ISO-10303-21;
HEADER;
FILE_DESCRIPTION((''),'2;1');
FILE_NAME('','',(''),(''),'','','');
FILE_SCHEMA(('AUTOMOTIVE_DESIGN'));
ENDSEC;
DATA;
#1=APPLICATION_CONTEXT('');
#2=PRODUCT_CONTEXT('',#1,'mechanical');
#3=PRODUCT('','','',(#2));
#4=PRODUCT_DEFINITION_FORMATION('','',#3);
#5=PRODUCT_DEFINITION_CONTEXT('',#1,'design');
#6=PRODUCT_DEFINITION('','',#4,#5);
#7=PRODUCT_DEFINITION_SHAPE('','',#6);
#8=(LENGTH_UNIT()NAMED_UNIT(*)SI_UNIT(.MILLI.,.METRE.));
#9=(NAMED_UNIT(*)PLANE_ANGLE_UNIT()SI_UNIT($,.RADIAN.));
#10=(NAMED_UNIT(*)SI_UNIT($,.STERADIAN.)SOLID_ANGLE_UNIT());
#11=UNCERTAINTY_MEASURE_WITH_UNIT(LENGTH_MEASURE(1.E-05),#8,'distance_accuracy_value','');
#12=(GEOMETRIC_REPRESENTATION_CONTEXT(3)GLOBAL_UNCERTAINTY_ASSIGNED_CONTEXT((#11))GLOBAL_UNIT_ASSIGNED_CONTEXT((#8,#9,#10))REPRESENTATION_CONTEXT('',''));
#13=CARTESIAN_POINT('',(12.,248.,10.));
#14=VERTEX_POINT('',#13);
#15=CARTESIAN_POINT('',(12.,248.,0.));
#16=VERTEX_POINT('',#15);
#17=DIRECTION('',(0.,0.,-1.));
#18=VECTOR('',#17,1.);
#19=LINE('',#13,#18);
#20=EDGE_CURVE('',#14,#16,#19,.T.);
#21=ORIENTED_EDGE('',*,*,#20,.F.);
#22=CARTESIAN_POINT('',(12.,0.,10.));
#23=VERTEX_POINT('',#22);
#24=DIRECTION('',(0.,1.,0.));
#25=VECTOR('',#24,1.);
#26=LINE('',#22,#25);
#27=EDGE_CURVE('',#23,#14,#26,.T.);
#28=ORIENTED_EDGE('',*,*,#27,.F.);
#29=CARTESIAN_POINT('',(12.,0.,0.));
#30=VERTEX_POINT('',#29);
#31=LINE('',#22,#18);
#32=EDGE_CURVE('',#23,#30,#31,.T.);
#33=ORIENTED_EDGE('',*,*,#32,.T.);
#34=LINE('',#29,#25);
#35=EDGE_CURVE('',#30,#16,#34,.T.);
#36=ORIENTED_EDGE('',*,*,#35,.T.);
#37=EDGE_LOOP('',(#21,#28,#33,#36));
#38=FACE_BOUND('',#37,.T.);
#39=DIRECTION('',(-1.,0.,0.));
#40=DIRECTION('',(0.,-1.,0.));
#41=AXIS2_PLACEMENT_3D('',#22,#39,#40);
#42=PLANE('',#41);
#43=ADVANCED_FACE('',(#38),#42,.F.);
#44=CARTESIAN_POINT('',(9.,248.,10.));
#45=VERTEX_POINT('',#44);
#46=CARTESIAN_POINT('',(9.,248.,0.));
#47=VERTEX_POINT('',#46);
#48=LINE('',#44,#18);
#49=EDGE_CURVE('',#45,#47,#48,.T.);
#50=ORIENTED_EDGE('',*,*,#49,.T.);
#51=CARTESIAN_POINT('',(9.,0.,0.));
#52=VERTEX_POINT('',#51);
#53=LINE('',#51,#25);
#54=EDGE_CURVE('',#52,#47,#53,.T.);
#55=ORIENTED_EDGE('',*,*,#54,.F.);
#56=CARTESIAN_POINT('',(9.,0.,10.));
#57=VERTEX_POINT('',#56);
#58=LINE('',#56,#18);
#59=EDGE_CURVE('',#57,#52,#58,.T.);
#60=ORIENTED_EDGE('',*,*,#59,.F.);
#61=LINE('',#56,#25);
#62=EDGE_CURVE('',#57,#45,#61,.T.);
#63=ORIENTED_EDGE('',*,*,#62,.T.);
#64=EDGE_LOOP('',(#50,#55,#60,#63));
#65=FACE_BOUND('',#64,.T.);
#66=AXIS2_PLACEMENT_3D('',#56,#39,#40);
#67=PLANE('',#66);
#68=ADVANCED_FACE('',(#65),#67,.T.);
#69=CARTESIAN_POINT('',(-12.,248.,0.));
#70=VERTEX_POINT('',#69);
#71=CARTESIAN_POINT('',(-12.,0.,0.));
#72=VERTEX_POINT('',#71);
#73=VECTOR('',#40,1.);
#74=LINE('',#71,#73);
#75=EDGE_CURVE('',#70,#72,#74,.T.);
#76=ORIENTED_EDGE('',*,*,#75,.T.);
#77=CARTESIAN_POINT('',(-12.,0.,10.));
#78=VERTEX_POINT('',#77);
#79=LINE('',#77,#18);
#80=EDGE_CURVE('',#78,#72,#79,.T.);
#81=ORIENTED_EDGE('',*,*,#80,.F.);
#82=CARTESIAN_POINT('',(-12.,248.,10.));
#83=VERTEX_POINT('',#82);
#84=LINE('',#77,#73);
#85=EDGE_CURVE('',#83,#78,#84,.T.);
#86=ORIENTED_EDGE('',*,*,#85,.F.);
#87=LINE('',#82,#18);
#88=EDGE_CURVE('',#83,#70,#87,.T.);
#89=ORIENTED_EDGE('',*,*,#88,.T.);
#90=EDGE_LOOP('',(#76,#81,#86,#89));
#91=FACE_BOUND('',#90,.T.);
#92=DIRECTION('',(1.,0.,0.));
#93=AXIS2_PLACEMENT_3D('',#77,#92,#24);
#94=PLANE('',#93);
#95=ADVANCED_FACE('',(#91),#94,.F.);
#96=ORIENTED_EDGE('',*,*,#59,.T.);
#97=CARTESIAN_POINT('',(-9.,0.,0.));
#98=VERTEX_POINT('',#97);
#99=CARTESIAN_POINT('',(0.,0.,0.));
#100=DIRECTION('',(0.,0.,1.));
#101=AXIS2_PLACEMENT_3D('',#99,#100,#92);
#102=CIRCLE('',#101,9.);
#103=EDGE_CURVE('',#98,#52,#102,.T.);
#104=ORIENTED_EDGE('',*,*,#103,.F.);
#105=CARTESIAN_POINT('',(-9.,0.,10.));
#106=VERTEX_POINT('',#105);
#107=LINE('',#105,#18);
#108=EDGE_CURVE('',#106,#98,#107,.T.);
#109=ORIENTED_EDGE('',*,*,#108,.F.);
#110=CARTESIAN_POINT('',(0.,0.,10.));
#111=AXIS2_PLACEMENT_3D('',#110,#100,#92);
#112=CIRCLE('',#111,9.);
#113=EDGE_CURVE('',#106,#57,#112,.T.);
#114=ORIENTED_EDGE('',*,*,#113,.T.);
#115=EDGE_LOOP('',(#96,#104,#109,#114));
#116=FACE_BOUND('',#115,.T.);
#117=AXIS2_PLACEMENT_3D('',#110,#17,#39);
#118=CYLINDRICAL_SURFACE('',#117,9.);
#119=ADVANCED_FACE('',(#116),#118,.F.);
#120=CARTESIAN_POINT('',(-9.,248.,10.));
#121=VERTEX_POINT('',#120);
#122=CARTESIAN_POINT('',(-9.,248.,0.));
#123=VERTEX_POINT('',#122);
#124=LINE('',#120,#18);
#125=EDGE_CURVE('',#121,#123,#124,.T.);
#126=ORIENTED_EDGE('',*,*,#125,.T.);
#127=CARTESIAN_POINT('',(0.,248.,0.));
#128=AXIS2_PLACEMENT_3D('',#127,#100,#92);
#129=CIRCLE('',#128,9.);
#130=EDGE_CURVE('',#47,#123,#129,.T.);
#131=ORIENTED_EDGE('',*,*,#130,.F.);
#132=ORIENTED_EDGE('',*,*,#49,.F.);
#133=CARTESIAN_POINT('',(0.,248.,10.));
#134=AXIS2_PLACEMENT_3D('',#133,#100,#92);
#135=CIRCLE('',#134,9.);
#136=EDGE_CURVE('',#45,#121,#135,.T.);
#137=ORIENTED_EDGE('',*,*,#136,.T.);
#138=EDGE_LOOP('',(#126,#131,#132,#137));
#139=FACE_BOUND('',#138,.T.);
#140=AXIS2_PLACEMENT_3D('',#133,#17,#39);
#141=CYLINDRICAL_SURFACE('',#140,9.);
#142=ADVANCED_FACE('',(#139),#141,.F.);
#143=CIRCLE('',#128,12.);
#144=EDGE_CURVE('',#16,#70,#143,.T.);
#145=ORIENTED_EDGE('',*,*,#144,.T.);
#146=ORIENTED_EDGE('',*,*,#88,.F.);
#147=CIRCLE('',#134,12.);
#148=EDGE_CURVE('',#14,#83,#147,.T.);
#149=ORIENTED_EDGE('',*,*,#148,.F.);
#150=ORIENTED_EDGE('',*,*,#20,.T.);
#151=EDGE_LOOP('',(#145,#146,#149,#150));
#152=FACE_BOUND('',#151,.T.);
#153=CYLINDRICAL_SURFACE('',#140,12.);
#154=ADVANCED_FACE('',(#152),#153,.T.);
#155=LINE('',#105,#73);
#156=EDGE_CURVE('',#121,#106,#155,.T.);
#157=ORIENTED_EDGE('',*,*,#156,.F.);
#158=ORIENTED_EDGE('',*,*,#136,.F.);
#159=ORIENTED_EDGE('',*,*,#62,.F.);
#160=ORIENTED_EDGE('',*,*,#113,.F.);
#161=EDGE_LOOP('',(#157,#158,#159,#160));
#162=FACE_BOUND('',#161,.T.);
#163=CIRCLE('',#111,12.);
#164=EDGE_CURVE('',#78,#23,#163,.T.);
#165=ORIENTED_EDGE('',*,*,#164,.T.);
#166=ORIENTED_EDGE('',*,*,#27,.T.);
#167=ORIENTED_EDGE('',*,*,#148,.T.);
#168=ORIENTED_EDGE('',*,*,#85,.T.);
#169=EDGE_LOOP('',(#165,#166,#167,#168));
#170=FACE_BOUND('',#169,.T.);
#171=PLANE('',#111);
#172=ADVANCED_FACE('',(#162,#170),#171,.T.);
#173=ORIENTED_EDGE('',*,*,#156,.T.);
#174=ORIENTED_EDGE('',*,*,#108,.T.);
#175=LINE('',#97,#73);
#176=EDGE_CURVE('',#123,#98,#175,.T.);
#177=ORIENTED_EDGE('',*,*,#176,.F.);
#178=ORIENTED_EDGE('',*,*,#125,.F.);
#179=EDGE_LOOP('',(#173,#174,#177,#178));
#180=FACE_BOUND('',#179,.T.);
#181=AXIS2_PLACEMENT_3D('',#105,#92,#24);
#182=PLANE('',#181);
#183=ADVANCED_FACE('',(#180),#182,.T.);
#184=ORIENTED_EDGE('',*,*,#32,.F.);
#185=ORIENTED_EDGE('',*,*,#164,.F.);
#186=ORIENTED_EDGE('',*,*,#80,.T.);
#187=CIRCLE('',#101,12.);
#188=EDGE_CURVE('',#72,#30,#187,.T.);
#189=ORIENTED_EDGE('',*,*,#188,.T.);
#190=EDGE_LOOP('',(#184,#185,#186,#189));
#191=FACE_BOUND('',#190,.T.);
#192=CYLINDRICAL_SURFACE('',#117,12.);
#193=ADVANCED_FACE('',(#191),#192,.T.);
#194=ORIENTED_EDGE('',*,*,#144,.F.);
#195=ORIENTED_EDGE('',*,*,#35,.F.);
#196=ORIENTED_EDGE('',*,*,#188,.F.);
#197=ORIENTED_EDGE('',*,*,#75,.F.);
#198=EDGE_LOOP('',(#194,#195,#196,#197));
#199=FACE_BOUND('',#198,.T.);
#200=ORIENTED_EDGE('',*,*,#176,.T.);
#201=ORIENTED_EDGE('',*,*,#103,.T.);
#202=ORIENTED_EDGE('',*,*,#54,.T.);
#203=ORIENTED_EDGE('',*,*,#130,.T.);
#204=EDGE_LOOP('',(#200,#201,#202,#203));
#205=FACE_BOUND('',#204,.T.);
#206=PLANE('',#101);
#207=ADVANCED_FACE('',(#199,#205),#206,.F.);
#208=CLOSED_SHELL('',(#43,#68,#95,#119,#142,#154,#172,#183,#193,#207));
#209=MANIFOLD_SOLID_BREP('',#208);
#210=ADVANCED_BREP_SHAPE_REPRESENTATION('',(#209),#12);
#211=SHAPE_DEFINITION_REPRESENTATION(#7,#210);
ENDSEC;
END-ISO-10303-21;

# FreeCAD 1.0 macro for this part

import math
import FreeCAD as App
import Part
import Sketcher
from FreeCAD import Vector

doc = App.newDocument("Part")
params = doc.addObject("Spreadsheet::Sheet", "Params")
for row, (alias, value) in enumerate([
    ("sketch1_radius", "12 mm"),
    ("sketch1_radius2", "9 mm"),
    ("sketch1_height", "248 mm"),
    ("pad1_length", "10 mm"),
], start=1):
    params.set(f"A{row}", alias)
    params.set(f"B{row}", "=" + value)
    params.setAlias(f"B{row}", alias)

body = doc.addObject("PartDesign::Body", "Body")

sketch1 = doc.addObject("Sketcher::SketchObject", "Sketch")
body.addObject(sketch1)
sketch1.AttachmentSupport = (doc.XY_Plane, [""])
sketch1.MapMode = "FlatFace"
sketch1.addGeometry(Part.LineSegment(Vector(12, 0, 0), Vector(12, 248, 0)), False)
sketch1.addGeometry(Part.ArcOfCircle(Part.Circle(Vector(0, 248, 0), Vector(0, 0, 1), 12), math.radians(0), math.radians(180)), False)
sketch1.addGeometry(Part.LineSegment(Vector(-12, 248, 0), Vector(-12, 0, 0)), False)
sketch1.addGeometry(Part.ArcOfCircle(Part.Circle(Vector(0, 0, 0), Vector(0, 0, 1), 12), math.radians(180), math.radians(360)), False)
sketch1.addGeometry(Part.ArcOfCircle(Part.Circle(Vector(0, 248, 0), Vector(0, 0, 1), 9), math.radians(0), math.radians(180)), False)
sketch1.addGeometry(Part.LineSegment(Vector(9, 248, 0), Vector(9, 0, 0)), False)
sketch1.addGeometry(Part.ArcOfCircle(Part.Circle(Vector(0, 0, 0), Vector(0, 0, 1), 9), math.radians(180), math.radians(360)), False)
sketch1.addGeometry(Part.LineSegment(Vector(-9, 0, 0), Vector(-9, 248, 0)), False)
sketch1.addConstraint(Sketcher.Constraint("Tangent", 0, 2, 1, 1))
sketch1.addConstraint(Sketcher.Constraint("Tangent", 1, 2, 2, 1))
sketch1.addConstraint(Sketcher.Constraint("Tangent", 2, 2, 3, 1))
sketch1.addConstraint(Sketcher.Constraint("Tangent", 3, 2, 0, 1))
sketch1.addConstraint(Sketcher.Constraint("Tangent", 4, 1, 5, 1))
sketch1.addConstraint(Sketcher.Constraint("Tangent", 5, 2, 6, 2))
sketch1.addConstraint(Sketcher.Constraint("Tangent", 6, 1, 7, 1))
sketch1.addConstraint(Sketcher.Constraint("Tangent", 7, 2, 4, 2))
sketch1.addConstraint(Sketcher.Constraint("Vertical", 0))
sketch1.addConstraint(Sketcher.Constraint("Vertical", 2))
sketch1.addConstraint(Sketcher.Constraint("Vertical", 5))
sketch1.addConstraint(Sketcher.Constraint("Vertical", 7))
sketch1.addConstraint(Sketcher.Constraint("Coincident", 3, 3, -1, 1))
sketch1.addConstraint(Sketcher.Constraint("Coincident", 6, 3, -1, 1))
sketch1.addConstraint(Sketcher.Constraint("Horizontal", 4, 3, 0, 2))
sketch1.addConstraint(Sketcher.Constraint("Radius", 1, 12.0))
sketch1.addConstraint(Sketcher.Constraint("Radius", 4, 9.0))
sketch1.addConstraint(Sketcher.Constraint("DistanceY", 0, 1, 0, 2, 248.0))
sketch1.setExpression("Constraints[15]", "Params.sketch1_radius")
sketch1.setExpression("Constraints[16]", "Params.sketch1_radius2")
sketch1.setExpression("Constraints[17]", "Params.sketch1_height")
pad1 = doc.addObject("PartDesign::Pad", "Pad")
body.addObject(pad1)
pad1.Profile = sketch1
pad1.setExpression("Length", "Params.pad1_length")

doc.recompute()
